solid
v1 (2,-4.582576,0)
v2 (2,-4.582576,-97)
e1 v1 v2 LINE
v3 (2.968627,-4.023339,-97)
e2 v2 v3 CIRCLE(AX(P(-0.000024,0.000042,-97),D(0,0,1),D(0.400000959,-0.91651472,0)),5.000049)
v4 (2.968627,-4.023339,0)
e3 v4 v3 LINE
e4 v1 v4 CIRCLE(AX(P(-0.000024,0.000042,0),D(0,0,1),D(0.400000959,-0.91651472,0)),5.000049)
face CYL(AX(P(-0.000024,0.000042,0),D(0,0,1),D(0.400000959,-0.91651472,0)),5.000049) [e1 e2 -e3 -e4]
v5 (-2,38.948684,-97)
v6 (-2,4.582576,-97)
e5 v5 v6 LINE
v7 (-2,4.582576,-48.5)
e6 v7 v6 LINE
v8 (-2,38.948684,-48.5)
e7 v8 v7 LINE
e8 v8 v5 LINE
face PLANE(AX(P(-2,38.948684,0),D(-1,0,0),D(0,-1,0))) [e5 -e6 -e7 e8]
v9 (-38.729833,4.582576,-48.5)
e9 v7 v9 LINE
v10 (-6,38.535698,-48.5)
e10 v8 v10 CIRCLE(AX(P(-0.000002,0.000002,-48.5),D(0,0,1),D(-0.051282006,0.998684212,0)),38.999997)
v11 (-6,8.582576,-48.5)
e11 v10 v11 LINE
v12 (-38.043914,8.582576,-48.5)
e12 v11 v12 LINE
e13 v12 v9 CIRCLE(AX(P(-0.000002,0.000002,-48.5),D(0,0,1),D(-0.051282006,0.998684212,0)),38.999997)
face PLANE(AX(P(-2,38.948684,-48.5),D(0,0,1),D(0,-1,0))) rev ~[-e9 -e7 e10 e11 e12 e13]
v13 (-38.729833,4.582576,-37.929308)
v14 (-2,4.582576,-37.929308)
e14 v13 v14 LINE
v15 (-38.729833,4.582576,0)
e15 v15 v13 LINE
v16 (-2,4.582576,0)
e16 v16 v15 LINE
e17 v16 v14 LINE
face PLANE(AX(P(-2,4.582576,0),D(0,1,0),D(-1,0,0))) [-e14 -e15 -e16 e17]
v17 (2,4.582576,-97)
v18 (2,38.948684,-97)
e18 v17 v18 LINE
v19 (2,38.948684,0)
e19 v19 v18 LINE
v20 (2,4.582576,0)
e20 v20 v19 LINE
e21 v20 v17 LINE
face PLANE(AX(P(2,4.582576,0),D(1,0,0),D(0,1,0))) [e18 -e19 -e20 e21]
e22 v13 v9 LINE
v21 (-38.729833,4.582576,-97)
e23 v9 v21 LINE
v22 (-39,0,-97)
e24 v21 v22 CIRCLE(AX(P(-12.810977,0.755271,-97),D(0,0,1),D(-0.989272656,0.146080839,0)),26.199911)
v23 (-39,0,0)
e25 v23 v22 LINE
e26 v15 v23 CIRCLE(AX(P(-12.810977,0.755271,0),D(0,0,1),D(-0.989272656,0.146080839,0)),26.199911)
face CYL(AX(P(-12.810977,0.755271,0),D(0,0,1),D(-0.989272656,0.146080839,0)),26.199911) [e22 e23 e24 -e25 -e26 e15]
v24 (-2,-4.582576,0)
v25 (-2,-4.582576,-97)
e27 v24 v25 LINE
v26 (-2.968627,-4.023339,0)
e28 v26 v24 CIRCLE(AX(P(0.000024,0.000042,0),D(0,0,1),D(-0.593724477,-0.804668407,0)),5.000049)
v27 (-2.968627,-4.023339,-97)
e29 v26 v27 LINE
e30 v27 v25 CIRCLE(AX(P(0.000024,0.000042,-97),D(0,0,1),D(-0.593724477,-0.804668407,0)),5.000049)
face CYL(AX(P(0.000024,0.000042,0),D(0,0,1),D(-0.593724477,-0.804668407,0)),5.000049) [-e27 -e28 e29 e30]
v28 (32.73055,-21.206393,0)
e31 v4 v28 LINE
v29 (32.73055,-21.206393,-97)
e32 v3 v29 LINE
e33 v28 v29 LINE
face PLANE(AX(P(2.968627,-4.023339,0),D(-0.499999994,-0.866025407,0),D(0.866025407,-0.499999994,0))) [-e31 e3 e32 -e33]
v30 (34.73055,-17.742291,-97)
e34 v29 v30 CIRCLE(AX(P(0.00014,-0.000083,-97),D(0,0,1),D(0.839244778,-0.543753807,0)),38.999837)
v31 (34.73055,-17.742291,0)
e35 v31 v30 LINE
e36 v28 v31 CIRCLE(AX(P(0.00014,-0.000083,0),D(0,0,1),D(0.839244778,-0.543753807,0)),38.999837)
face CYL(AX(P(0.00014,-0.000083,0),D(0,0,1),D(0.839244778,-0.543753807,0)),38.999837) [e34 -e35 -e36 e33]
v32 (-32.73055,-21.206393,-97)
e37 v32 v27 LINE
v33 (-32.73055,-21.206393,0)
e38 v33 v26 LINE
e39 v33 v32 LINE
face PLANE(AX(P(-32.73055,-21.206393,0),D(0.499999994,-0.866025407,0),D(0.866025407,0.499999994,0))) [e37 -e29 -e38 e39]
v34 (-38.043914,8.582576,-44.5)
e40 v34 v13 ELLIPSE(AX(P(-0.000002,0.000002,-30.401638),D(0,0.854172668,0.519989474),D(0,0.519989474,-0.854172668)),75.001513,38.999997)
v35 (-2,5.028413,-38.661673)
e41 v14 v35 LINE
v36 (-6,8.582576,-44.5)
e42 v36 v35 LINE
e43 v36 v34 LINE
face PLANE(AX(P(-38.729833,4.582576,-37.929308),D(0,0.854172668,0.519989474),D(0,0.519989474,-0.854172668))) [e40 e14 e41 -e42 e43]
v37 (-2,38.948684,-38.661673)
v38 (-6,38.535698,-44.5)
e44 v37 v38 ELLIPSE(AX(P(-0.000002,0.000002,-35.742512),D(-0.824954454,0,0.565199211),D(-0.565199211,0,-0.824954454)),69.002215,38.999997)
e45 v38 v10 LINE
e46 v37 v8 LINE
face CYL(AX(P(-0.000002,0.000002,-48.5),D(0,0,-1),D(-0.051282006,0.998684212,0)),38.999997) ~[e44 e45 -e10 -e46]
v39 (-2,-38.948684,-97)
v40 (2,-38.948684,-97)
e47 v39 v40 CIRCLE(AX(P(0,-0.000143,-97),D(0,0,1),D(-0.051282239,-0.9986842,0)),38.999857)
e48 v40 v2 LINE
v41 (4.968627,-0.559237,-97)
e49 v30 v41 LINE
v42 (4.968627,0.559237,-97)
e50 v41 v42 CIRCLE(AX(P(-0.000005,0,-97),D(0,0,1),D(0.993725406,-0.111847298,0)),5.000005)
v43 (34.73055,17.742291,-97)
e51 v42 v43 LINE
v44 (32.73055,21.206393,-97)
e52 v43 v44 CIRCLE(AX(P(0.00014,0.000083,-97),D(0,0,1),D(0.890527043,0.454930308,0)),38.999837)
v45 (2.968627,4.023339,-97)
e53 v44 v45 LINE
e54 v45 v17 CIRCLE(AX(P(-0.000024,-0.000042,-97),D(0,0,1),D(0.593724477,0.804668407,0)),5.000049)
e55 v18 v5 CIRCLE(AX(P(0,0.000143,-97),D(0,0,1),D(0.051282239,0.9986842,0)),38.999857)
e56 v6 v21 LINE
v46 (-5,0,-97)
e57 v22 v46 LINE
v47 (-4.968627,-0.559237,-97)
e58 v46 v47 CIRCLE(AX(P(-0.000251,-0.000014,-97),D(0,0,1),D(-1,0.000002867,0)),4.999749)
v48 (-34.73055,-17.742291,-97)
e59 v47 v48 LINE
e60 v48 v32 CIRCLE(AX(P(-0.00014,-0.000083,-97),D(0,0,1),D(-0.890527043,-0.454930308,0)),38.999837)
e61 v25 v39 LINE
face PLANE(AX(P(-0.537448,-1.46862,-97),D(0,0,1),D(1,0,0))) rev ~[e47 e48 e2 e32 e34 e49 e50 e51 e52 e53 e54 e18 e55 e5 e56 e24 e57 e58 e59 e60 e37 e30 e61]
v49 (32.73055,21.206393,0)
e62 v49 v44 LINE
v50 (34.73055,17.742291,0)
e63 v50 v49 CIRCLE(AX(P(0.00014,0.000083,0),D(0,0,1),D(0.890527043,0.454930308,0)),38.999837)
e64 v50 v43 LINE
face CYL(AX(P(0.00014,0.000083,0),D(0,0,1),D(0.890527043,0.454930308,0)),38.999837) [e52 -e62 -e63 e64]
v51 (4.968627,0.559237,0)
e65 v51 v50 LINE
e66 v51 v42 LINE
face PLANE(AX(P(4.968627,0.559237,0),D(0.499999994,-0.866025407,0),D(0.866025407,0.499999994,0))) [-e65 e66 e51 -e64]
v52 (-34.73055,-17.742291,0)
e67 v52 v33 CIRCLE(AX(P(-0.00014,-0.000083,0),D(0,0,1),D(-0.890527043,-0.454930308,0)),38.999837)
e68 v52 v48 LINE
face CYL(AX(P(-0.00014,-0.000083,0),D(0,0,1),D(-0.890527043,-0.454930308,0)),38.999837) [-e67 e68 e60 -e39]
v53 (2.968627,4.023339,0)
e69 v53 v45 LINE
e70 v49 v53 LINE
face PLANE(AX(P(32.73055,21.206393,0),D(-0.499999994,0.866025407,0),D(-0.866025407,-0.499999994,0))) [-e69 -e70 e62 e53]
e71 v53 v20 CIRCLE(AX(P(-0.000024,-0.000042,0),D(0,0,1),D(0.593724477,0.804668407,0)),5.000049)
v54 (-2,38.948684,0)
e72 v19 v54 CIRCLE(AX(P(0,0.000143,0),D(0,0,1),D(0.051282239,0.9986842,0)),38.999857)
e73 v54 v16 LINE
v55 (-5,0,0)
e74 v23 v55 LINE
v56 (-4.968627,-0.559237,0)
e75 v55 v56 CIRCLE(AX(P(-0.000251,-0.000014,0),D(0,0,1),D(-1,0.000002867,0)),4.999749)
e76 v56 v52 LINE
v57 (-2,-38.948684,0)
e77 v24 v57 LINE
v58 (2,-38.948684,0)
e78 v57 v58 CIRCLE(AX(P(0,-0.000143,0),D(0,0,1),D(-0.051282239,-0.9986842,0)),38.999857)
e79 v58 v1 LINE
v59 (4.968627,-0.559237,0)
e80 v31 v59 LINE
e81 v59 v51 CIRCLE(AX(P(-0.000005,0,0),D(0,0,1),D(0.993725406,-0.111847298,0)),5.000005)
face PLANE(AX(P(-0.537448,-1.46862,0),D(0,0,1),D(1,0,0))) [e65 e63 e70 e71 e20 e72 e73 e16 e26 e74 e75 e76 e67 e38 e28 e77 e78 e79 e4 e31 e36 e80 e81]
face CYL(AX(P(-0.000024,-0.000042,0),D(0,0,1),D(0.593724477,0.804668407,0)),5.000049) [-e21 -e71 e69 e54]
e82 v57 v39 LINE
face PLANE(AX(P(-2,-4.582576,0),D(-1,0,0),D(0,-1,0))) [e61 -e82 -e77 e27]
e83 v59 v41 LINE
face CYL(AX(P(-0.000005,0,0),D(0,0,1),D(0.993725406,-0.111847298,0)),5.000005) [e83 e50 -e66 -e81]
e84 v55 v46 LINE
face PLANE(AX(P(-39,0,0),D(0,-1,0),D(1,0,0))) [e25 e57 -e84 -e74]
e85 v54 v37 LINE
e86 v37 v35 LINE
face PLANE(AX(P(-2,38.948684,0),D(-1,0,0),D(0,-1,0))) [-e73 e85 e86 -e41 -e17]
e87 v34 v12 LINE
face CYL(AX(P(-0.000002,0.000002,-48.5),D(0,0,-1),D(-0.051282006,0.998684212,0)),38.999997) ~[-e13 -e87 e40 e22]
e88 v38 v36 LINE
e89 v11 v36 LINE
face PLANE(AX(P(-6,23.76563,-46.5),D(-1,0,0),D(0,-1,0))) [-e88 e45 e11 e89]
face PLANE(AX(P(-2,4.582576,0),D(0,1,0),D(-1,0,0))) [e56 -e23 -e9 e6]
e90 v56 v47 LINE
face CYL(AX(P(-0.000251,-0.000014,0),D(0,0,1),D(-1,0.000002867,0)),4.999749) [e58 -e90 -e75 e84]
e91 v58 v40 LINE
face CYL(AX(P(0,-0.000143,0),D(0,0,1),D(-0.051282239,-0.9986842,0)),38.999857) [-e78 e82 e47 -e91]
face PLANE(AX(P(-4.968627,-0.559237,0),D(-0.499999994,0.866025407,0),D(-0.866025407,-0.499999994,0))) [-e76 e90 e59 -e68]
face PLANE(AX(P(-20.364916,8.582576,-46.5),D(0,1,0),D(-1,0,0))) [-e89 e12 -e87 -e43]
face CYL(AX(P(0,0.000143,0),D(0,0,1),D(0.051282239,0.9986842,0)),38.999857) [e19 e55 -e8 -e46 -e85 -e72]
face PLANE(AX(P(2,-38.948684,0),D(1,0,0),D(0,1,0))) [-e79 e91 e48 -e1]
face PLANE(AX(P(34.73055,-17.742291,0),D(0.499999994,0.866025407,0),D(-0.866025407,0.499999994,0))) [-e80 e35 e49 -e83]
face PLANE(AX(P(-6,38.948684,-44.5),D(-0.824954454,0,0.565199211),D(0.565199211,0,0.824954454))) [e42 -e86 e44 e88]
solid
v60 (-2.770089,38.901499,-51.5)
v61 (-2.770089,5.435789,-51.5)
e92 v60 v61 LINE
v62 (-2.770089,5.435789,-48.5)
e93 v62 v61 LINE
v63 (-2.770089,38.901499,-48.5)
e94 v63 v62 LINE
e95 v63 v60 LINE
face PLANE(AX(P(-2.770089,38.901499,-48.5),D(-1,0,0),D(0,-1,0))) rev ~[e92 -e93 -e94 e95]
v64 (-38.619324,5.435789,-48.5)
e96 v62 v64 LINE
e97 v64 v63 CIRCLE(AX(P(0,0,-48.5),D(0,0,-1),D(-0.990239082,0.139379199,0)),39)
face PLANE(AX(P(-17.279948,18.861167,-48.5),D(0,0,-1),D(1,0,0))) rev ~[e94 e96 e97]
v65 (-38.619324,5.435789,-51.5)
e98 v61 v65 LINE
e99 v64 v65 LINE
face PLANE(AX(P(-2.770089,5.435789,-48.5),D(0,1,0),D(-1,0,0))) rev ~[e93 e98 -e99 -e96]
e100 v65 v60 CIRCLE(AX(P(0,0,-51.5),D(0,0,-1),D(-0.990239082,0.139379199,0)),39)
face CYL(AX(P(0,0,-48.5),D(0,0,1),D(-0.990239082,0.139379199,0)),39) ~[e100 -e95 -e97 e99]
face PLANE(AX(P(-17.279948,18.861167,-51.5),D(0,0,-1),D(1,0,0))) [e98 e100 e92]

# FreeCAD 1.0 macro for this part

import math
import FreeCAD as App
import Part
import Sketcher
from FreeCAD import Vector


def add_polygon(sketch, points):
    """Adds a closed chain of lines whose ends are joined by coincident constraints."""
    first, n = sketch.GeometryCount, len(points)
    for a, b in zip(points, points[1:] + points[:1]):
        sketch.addGeometry(Part.LineSegment(App.Vector(*a, 0), App.Vector(*b, 0)), False)
    for i in range(n):
        sketch.addConstraint(Sketcher.Constraint("Coincident", first + i, 2, first + (i + 1) % n, 1))

doc = App.newDocument("Part")
body = doc.addObject("PartDesign::Body", "Body")

# Sketch on XY plane
sketch1 = body.newObject("Sketcher::SketchObject", "Sketch")
sketch1.AttachmentSupport = (doc.getObject("XY_Plane"), [""])
sketch1.MapMode = "FlatFace"
sketch1.addGeometry([
    Part.LineSegment(Vector(2, 4.582576, 0), Vector(2, 38.948684, 0)),  # 0
    Part.ArcOfCircle(Part.Circle(Vector(0, 0.000143, 0), Vector(0, 0, 1), 38.999857), math.radians(87.060455), math.radians(92.939545)),  # 1
    Part.LineSegment(Vector(-2, 38.948684, 0), Vector(-2, 4.582576, 0)),  # 2
    Part.LineSegment(Vector(-2, 4.582576, 0), Vector(-38.729833, 4.582576, 0)),  # 3
    Part.ArcOfCircle(Part.Circle(Vector(-12.810977, 0.755271, 0), Vector(0, 0, 1), 26.199911), math.radians(171.600127), math.radians(181.651908)),  # 4
    Part.LineSegment(Vector(-39, 0, 0), Vector(-5, 0, 0)),  # 5
    Part.ArcOfCircle(Part.Circle(Vector(-0.000251, -0.000014, 0), Vector(0, 0, 1), 4.999749), math.radians(179.999836), math.radians(186.421979)),  # 6
    Part.LineSegment(Vector(-4.968627, -0.559237, 0), Vector(-34.73055, -17.742291, 0)),  # 7
    Part.ArcOfCircle(Part.Circle(Vector(-0.00014, -0.000083, 0), Vector(0, 0, 1), 38.999837), math.radians(-152.93955), math.radians(-147.060456)),  # 8
    Part.LineSegment(Vector(-32.73055, -21.206393, 0), Vector(-2.968627, -4.023339, 0)),  # 9
    Part.ArcOfCircle(Part.Circle(Vector(0.000024, 0.000042, 0), Vector(0, 0, 1), 5.000049), math.radians(-126.421756), math.radians(-113.578238)),  # 10
    Part.LineSegment(Vector(-2, -4.582576, 0), Vector(-2, -38.948684, 0)),  # 11
    Part.ArcOfCircle(Part.Circle(Vector(0, -0.000143, 0), Vector(0, 0, 1), 38.999857), math.radians(-92.939545), math.radians(-87.060455)),  # 12
    Part.LineSegment(Vector(2, -38.948684, 0), Vector(2, -4.582576, 0)),  # 13
    Part.ArcOfCircle(Part.Circle(Vector(-0.000024, 0.000042, 0), Vector(0, 0, 1), 5.000049), math.radians(-66.421762), math.radians(-53.578244)),  # 14
    Part.LineSegment(Vector(2.968627, -4.023339, 0), Vector(32.73055, -21.206393, 0)),  # 15
    Part.ArcOfCircle(Part.Circle(Vector(0.00014, -0.000083, 0), Vector(0, 0, 1), 38.999837), math.radians(-32.939544), math.radians(-27.06045)),  # 16
    Part.LineSegment(Vector(34.73055, -17.742291, 0), Vector(4.968627, -0.559237, 0)),  # 17
    Part.ArcOfCircle(Part.Circle(Vector(-0.000005, 0, 0), Vector(0, 0, 1), 5.000005), math.radians(-6.421815), math.radians(6.421815)),  # 18
    Part.LineSegment(Vector(4.968627, 0.559237, 0), Vector(34.73055, 17.742291, 0)),  # 19
    Part.ArcOfCircle(Part.Circle(Vector(0.00014, 0.000083, 0), Vector(0, 0, 1), 38.999837), math.radians(27.06045), math.radians(32.939544)),  # 20
    Part.LineSegment(Vector(32.73055, 21.206393, 0), Vector(2.968627, 4.023339, 0)),  # 21
    Part.ArcOfCircle(Part.Circle(Vector(-0.000024, -0.000042, 0), Vector(0, 0, 1), 5.000049), math.radians(53.578244), math.radians(66.421762)),  # 22
], False)
sketch1.addConstraint([
    Sketcher.Constraint("Coincident", 0, 2, 1, 1),
    Sketcher.Constraint("Coincident", 1, 2, 2, 1),
    Sketcher.Constraint("Coincident", 2, 2, 3, 1),
    Sketcher.Constraint("Coincident", 3, 2, 4, 1),
    Sketcher.Constraint("Coincident", 4, 2, 5, 1),
    Sketcher.Constraint("Coincident", 5, 2, 6, 1),
    Sketcher.Constraint("Coincident", 6, 2, 7, 1),
    Sketcher.Constraint("Coincident", 7, 2, 8, 1),
    Sketcher.Constraint("Coincident", 8, 2, 9, 1),
    Sketcher.Constraint("Coincident", 9, 2, 10, 1),
    Sketcher.Constraint("Coincident", 10, 2, 11, 1),
    Sketcher.Constraint("Coincident", 11, 2, 12, 1),
    Sketcher.Constraint("Coincident", 12, 2, 13, 1),
    Sketcher.Constraint("Coincident", 13, 2, 14, 1),
    Sketcher.Constraint("Coincident", 14, 2, 15, 1),
    Sketcher.Constraint("Coincident", 15, 2, 16, 1),
    Sketcher.Constraint("Coincident", 16, 2, 17, 1),
    Sketcher.Constraint("Coincident", 17, 2, 18, 1),
    Sketcher.Constraint("Coincident", 18, 2, 19, 1),
    Sketcher.Constraint("Coincident", 19, 2, 20, 1),
    Sketcher.Constraint("Coincident", 20, 2, 21, 1),
    Sketcher.Constraint("Coincident", 21, 2, 22, 1),
    Sketcher.Constraint("Coincident", 22, 2, 0, 1),
    Sketcher.Constraint("Vertical", 0),
    Sketcher.Constraint("Vertical", 2),
    Sketcher.Constraint("Horizontal", 3),
    Sketcher.Constraint("Horizontal", 5),
    Sketcher.Constraint("Vertical", 11),
    Sketcher.Constraint("Vertical", 13),
    Sketcher.Constraint("Coincident", 18, 3, -1, 1),
    Sketcher.Constraint("PointOnObject", 1, 3, -2),
    Sketcher.Constraint("PointOnObject", 12, 3, -2),
    Sketcher.Constraint("PointOnObject", 4, 2, -1),
    Sketcher.Constraint("DistanceX", 5, 1, 5, 2, 34.0),
    Sketcher.Constraint("DistanceX", -1, 1, 0, 2, 2.0),
    Sketcher.Constraint("DistanceX", 1, 2, -1, 1, 2.0),
    Sketcher.Constraint("DistanceX", 4, 2, -1, 1, 39.0),
    Sketcher.Constraint("DistanceX", 10, 2, -1, 1, 2.0),
    Sketcher.Constraint("DistanceX", -1, 1, 12, 2, 2.0),
    Sketcher.Constraint("DistanceX", 7, 2, 8, 2, 2.0),
    Sketcher.Constraint("DistanceX", 6, 2, 9, 2, 2.0),
    Sketcher.Constraint("DistanceX", 15, 2, 16, 2, 2.0),
    Sketcher.Constraint("DistanceX", 14, 2, 17, 2, 2.0),
    Sketcher.Constraint("DistanceX", 20, 2, 19, 2, 2.0),
    Sketcher.Constraint("DistanceX", 21, 2, 18, 2, 2.0),
    Sketcher.Constraint("Radius", 4, 26.199911),
    Sketcher.Constraint("Radius", 6, 4.999749),
    Sketcher.Constraint("Radius", 10, 5.000049),
    Sketcher.Constraint("Radius", 14, 5.000049),
    Sketcher.Constraint("Radius", 22, 5.000049),
    Sketcher.Constraint("Radius", 1, 38.999857),
    Sketcher.Constraint("Radius", 8, 38.999837),
    Sketcher.Constraint("Radius", 12, 38.999857),
    Sketcher.Constraint("Radius", 16, 38.999837),
    Sketcher.Constraint("Radius", 18, 5.000005),
    Sketcher.Constraint("Radius", 20, 38.999837),
    Sketcher.Constraint("DistanceX", 4, 3, 10, 3, 12.811002),
    Sketcher.Constraint("DistanceY", 10, 3, 1, 3, 0.000101),
    Sketcher.Constraint("DistanceY", 14, 3, 1, 3, 0.000101),
    Sketcher.Constraint("DistanceY", 12, 3, 22, 3, 0.000101),
    Sketcher.Constraint("DistanceY", 20, 3, 0, 2, 38.948601),
    Sketcher.Constraint("DistanceY", 12, 2, 16, 3, 38.948601),
    Sketcher.Constraint("DistanceY", 15, 2, 16, 2, 3.464102),
    Sketcher.Constraint("DistanceY", 14, 2, 17, 2, 3.464102),
    Sketcher.Constraint("DistanceY", 18, 2, 21, 2, 3.464102),
    Sketcher.Constraint("Distance", 7, 34.366108),
    Sketcher.Constraint("Distance", 9, 34.366108),
    Sketcher.Constraint("Distance", 15, 34.366108),
    Sketcher.Constraint("Distance", 19, 34.366108),
    Sketcher.Constraint("Distance", 21, 34.366108),
    Sketcher.Constraint("DistanceX", 3, 2, 3, 1, 36.729833),
    Sketcher.Constraint("DistanceY", 0, 1, 0, 2, 34.366108),
    Sketcher.Constraint("DistanceY", 2, 2, 2, 1, 34.366108),
    Sketcher.Constraint("DistanceY", 11, 2, 11, 1, 34.366108),
    Sketcher.Constraint("DistanceY", 13, 1, 13, 2, 34.366108),
    Sketcher.Constraint("DistanceY", -1, 1, 4, 3, 0.755271),
    Sketcher.Constraint("DistanceX", 8, 3, -1, 1, 0.00014),
    Sketcher.Constraint("DistanceX", 7, 2, -1, 1, 34.73055),
    Sketcher.Constraint("DistanceY", 7, 2, -1, 1, 17.742291),
])
pad1 = body.newObject("PartDesign::Pad", "Pad")
pad1.Profile = sketch1
pad1.Length = 97
pad1.Reversed = True

# Sketch on XZ plane
sketch2 = body.newObject("Sketcher::SketchObject", "Sketch001")
sketch2.AttachmentSupport = (doc.getObject("XZ_Plane"), [""])
sketch2.MapMode = "FlatFace"
sketch2.AttachmentOffset = App.Placement(Vector(0, 0, -4.582576), App.Rotation())
add_polygon(sketch2, [(-2, -44.5), (-2, -48.5), (-38.7, -48.5), (-38.7, -44.5)])  # lines 0-3
sketch2.addConstraint([
    Sketcher.Constraint("Vertical", 0),
    Sketcher.Constraint("Horizontal", 1),
    Sketcher.Constraint("Vertical", 2),
    Sketcher.Constraint("Horizontal", 3),
    Sketcher.Constraint("DistanceY", 0, 2, 0, 1, 4.0),
    Sketcher.Constraint("DistanceX", 0, 2, -1, 1, 1.999999),
    Sketcher.Constraint("DistanceY", 0, 2, -1, 1, 48.5),
    Sketcher.Constraint("DistanceX", 1, 2, 1, 1, 36.729833),
])
pad2 = body.newObject("PartDesign::Pad", "Pad001")
pad2.Profile = sketch2
pad2.Length = 4
pad2.Reversed = True

# Sketch on YZ plane
sketch3 = body.newObject("Sketcher::SketchObject", "Sketch002")
sketch3.AttachmentSupport = (doc.getObject("YZ_Plane"), [""])
sketch3.MapMode = "FlatFace"
sketch3.AttachmentOffset = App.Placement(Vector(0, 0, -38.729833), App.Rotation())
add_polygon(sketch3, [(4.6, -37.9), (8.6, -44.5), (4.6, -44.5)])  # lines 0-2
sketch3.addConstraint([
    Sketcher.Constraint("Horizontal", 1),
    Sketcher.Constraint("Vertical", 2),
    Sketcher.Constraint("DistanceX", 1, 2, 1, 1, 4.0),
    Sketcher.Constraint("DistanceY", 0, 2, -1, 1, 44.5),
    Sketcher.Constraint("DistanceY", 2, 1, 2, 2, 6.570692),
    Sketcher.Constraint("DistanceX", -1, 1, 0, 2, 8.582576),
])
pad3 = body.newObject("PartDesign::Pad", "Pad002")
pad3.Profile = sketch3
pad3.Length = 36.75

# Sketch on YZ plane
sketch4 = body.newObject("Sketcher::SketchObject", "Sketch003")
sketch4.AttachmentSupport = (doc.getObject("YZ_Plane"), [""])
sketch4.MapMode = "FlatFace"
sketch4.AttachmentOffset = App.Placement(Vector(0, 0, -2), App.Rotation())
add_polygon(sketch4, [(38.9, -44.5), (38.9, -48.5), (8.6, -48.5), (8.6, -44.5)])  # lines 0-3
sketch4.addConstraint([
    Sketcher.Constraint("Vertical", 0),
    Sketcher.Constraint("Horizontal", 1),
    Sketcher.Constraint("Vertical", 2),
    Sketcher.Constraint("Horizontal", 3),
    Sketcher.Constraint("DistanceY", 0, 2, 0, 1, 4.0),
    Sketcher.Constraint("DistanceY", 0, 2, -1, 1, 48.5),
    Sketcher.Constraint("DistanceX", 1, 2, 1, 1, 30.366108),
    Sketcher.Constraint("DistanceX", -1, 1, 0, 2, 38.948684),
])
pad4 = body.newObject("PartDesign::Pad", "Pad003")
pad4.Profile = sketch4
pad4.Length = 4
pad4.Reversed = True

# Sketch on XZ plane
sketch5 = body.newObject("Sketcher::SketchObject", "Sketch004")
sketch5.AttachmentSupport = (doc.getObject("XZ_Plane"), [""])
sketch5.MapMode = "FlatFace"
sketch5.AttachmentOffset = App.Placement(Vector(0, 0, -38.948684), App.Rotation())
add_polygon(sketch5, [(-2, -44.5), (-6, -44.5), (-2, -38.7)])  # lines 0-2
sketch5.addConstraint([
    Sketcher.Constraint("Horizontal", 0),
    Sketcher.Constraint("Vertical", 2),
    Sketcher.Constraint("DistanceX", 0, 2, 0, 1, 4.0),
    Sketcher.Constraint("DistanceX", 0, 2, -1, 1, 6.0),
    Sketcher.Constraint("DistanceY", 0, 2, -1, 1, 44.5),
    Sketcher.Constraint("Distance", 1, 7.077151),
])
pad5 = body.newObject("PartDesign::Pad", "Pad004")
pad5.Profile = sketch5
pad5.Length = 36.75

# Sketch on XY plane
sketch6 = body.newObject("Sketcher::SketchObject", "Sketch005")
sketch6.AttachmentSupport = (doc.getObject("XY_Plane"), [""])
sketch6.MapMode = "FlatFace"
sketch6.AttachmentOffset = App.Placement(Vector(0, 0, -48.5), App.Rotation())
sketch6.addGeometry([
    Part.ArcOfCircle(Part.Circle(Vector(0, 0, 0), Vector(0, 0, 1), 39), math.radians(93), math.radians(173)),
    Part.LineSegment(Vector(-39, 5, 0), Vector(-40, 48, 0)),
    Part.LineSegment(Vector(-40, 48, 0), Vector(-2, 39, 0)),
], False)
sketch6.addConstraint([
    Sketcher.Constraint("Coincident", 0, 2, 1, 1),
    Sketcher.Constraint("Coincident", 1, 2, 2, 1),
    Sketcher.Constraint("Coincident", 2, 2, 0, 1),
    Sketcher.Constraint("Coincident", 0, 3, -1, 1),
    Sketcher.Constraint("DistanceX", 2, 2, -1, 1, 2.0),
    Sketcher.Constraint("Radius", 0, 38.999997),
    Sketcher.Constraint("Distance", 2, 39.180929),
    Sketcher.Constraint("DistanceY", -1, 1, 1, 2, 48.13461),
    Sketcher.Constraint("DistanceX", 0, 2, 0, 3, 38.729831),
])
pocket1 = body.newObject("PartDesign::Pocket", "Pocket")
pocket1.Profile = sketch6
pocket1.Length = 100
pocket1.Reversed = True
body2 = doc.addObject("PartDesign::Body", "Body001")

# Sketch on XY plane
sketch7 = body2.newObject("Sketcher::SketchObject", "Sketch006")
sketch7.AttachmentSupport = (doc.getObject("XY_Plane001"), [""])
sketch7.MapMode = "FlatFace"
sketch7.AttachmentOffset = App.Placement(Vector(0, 0, -48.5), App.Rotation())
sketch7.addGeometry([
    Part.LineSegment(Vector(-3, 5, 0), Vector(-39, 5, 0)),
    Part.ArcOfCircle(Part.Circle(Vector(0, 0, 0), Vector(0, 0, 1), 39), math.radians(94), math.radians(172)),
    Part.LineSegment(Vector(-3, 39, 0), Vector(-3, 5, 0)),
], False)
sketch7.addConstraint([
    Sketcher.Constraint("Coincident", 0, 2, 1, 2),
    Sketcher.Constraint("Coincident", 1, 1, 2, 1),
    Sketcher.Constraint("Coincident", 2, 2, 0, 1),
    Sketcher.Constraint("Horizontal", 0),
    Sketcher.Constraint("Vertical", 2),
    Sketcher.Constraint("Coincident", 1, 3, -1, 1),
    Sketcher.Constraint("Radius", 1, 39.0),
    Sketcher.Constraint("DistanceY", 2, 2, 2, 1, 33.46571),
    Sketcher.Constraint("DistanceY", -1, 1, 1, 1, 38.901499),
])
pad6 = body2.newObject("PartDesign::Pad", "Pad005")
pad6.Profile = sketch7
pad6.Length = 3
pad6.Reversed = True

doc.recompute()
